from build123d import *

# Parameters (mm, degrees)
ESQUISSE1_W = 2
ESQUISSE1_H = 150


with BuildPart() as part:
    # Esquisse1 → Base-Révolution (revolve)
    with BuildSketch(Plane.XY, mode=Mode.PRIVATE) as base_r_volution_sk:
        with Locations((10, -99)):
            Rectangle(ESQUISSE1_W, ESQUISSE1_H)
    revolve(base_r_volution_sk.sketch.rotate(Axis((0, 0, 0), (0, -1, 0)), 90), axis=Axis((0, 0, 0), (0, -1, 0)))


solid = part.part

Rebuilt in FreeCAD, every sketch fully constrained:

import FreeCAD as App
import Part
import Sketcher

V = App.Vector

doc = App.newDocument("Part")
params = doc.addObject("Spreadsheet::Sheet", "Params")
for row, (alias, value) in enumerate([
    ("sketch1_width", "2 mm"),
    ("sketch1_height", "150 mm"),
    ("revolution_angle", "360 deg"),
], start=1):
    params.set(f"A{row}", alias)
    params.set(f"B{row}", "=" + value)
    params.setAlias(f"B{row}", alias)

body = doc.addObject("PartDesign::Body", "Body")

sketch1 = body.newObject("Sketcher::SketchObject", "Sketch")
sketch1.AttachmentSupport = (doc.getObject("XY_Plane"), [""])
sketch1.MapMode = "FlatFace"
sketch1.addGeometry(Part.LineSegment(V(9, -24, 0), V(9, -174, 0)), False)
sketch1.addGeometry(Part.LineSegment(V(9, -174, 0), V(11, -174, 0)), False)
sketch1.addGeometry(Part.LineSegment(V(11, -174, 0), V(11, -24, 0)), False)
sketch1.addGeometry(Part.LineSegment(V(11, -24, 0), V(9, -24, 0)), False)
sketch1.addConstraint(Sketcher.Constraint("Coincident", 0, 2, 1, 1))
sketch1.addConstraint(Sketcher.Constraint("Coincident", 1, 2, 2, 1))
sketch1.addConstraint(Sketcher.Constraint("Coincident", 2, 2, 3, 1))
sketch1.addConstraint(Sketcher.Constraint("Coincident", 3, 2, 0, 1))
sketch1.addConstraint(Sketcher.Constraint("Vertical", 0))
sketch1.addConstraint(Sketcher.Constraint("Horizontal", 1))
sketch1.addConstraint(Sketcher.Constraint("Vertical", 2))
sketch1.addConstraint(Sketcher.Constraint("Horizontal", 3))
sketch1.addConstraint(Sketcher.Constraint("DistanceX", 1, 1, 1, 2, 2.0))
sketch1.addConstraint(Sketcher.Constraint("DistanceY", 0, 2, 0, 1, 150.0))
sketch1.addConstraint(Sketcher.Constraint("DistanceX", -1, 1, 0, 2, 9.0))
sketch1.addConstraint(Sketcher.Constraint("DistanceY", 0, 2, -1, 1, 174.0))
sketch1.setExpression("Constraints[8]", "Params.sketch1_width")
sketch1.setExpression("Constraints[9]", "Params.sketch1_height")
revolution = body.newObject("PartDesign::Revolution", "Revolution")
revolution.Profile = sketch1
revolution.ReferenceAxis = (sketch1, ["V_Axis"])
revolution.setExpression("Angle", "Params.revolution_angle")

doc.recompute()
